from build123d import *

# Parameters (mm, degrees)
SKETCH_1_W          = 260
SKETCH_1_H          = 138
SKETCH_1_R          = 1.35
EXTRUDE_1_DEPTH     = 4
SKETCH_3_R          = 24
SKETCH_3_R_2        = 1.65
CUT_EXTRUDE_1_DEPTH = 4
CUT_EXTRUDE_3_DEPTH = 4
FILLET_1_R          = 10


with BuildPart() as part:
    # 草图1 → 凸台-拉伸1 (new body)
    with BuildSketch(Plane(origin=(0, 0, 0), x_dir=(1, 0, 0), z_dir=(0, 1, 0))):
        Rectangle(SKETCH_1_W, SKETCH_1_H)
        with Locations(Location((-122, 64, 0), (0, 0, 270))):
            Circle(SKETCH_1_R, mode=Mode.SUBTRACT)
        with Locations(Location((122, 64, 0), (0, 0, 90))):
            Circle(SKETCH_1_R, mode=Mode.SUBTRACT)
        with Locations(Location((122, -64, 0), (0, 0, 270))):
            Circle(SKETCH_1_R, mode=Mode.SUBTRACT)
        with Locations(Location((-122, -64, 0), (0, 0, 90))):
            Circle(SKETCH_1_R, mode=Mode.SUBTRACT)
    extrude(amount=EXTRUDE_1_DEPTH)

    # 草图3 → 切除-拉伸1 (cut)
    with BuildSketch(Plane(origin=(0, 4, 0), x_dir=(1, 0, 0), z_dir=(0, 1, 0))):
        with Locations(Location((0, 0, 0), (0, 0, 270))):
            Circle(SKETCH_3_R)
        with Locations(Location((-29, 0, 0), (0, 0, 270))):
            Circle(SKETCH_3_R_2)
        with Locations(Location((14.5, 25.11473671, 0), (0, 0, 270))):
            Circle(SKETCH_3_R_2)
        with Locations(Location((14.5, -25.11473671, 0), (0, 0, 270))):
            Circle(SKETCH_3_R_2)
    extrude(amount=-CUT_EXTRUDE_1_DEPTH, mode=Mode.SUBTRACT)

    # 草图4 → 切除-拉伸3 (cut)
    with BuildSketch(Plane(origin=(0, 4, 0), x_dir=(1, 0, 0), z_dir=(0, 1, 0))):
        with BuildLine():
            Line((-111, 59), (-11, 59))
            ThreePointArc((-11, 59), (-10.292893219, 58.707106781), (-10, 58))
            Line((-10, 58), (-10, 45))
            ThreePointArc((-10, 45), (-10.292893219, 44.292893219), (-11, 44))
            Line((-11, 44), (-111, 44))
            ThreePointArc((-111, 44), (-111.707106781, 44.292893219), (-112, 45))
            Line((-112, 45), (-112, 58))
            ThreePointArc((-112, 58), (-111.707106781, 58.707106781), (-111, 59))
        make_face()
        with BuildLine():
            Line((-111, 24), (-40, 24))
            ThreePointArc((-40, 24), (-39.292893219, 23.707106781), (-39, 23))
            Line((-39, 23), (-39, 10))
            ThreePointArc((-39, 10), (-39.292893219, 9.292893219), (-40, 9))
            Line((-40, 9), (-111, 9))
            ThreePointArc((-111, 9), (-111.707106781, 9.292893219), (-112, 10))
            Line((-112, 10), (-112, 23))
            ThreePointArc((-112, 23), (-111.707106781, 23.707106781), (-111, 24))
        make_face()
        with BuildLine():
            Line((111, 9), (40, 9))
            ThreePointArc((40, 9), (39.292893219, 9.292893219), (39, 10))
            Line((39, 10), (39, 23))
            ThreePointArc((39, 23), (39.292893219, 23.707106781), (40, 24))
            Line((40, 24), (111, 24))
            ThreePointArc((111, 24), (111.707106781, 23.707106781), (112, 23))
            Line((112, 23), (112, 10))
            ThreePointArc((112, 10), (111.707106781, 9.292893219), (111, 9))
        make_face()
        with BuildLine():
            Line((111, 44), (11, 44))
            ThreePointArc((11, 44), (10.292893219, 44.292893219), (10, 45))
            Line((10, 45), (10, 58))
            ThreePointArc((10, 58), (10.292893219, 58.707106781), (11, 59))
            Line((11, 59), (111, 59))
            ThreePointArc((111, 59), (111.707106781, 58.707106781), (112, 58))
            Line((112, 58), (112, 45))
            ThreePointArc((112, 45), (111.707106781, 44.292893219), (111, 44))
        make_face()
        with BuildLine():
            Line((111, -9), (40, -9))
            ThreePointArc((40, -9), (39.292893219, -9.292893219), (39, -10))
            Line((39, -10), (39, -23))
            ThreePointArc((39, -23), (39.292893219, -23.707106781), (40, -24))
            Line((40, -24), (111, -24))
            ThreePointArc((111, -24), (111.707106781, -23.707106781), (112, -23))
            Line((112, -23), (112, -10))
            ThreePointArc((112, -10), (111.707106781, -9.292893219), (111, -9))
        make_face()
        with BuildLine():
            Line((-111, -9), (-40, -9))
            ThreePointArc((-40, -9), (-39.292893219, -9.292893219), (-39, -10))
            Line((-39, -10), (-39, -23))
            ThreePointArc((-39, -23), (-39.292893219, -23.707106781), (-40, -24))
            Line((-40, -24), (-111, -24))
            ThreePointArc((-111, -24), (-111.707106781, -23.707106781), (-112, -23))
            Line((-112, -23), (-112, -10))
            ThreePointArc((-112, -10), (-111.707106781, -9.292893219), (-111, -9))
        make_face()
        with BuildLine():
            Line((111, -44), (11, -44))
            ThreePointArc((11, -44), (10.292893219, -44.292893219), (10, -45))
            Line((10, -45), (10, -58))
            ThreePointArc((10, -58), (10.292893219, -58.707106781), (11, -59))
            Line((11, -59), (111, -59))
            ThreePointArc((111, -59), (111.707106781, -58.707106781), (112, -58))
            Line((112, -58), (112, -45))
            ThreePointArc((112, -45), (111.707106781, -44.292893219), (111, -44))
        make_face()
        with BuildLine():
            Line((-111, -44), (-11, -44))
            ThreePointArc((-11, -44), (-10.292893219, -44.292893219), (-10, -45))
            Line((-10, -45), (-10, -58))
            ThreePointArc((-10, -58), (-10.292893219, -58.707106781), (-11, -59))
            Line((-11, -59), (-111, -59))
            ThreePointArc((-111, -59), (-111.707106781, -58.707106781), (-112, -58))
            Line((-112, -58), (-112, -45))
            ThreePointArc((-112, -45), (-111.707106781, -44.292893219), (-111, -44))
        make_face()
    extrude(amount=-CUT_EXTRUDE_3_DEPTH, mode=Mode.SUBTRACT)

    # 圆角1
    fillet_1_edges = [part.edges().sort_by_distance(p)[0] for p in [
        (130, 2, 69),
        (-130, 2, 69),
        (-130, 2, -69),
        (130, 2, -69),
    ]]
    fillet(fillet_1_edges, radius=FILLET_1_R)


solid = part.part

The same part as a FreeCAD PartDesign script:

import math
import FreeCAD as App
import Part
import Sketcher

V = App.Vector
Q = App.Units.Quantity


def edges_at(feature, points):
    """Names of the edges that pass closest to the given points."""
    edges = feature.Shape.Edges
    near = lambda p: min(range(len(edges)), key=lambda i: edges[i].distToShape(Part.Vertex(*p))[0])
    return sorted({f"Edge{near(p) + 1}" for p in points})


def add_polygon(sketch, points):
    """Adds a closed chain of lines whose ends are joined by coincident constraints."""
    first, n = sketch.GeometryCount, len(points)
    for a, b in zip(points, points[1:] + points[:1]):
        sketch.addGeometry(Part.LineSegment(App.Vector(*a, 0), App.Vector(*b, 0)), False)
    for i in range(n):
        sketch.addConstraint(Sketcher.Constraint("Coincident", first + i, 2, first + (i + 1) % n, 1))

doc = App.newDocument("Part")
params = doc.addObject("Spreadsheet::Sheet", "Params")
for row, (alias, value) in enumerate([
    ("sketch1_diameter", "2.7 mm"),
    ("sketch1_width", "260 mm"),
    ("sketch1_height", "138 mm"),
    ("pad1_length", "4 mm"),
    ("sketch2_diameter", "48 mm"),
    ("sketch2_diameter2", "3.3 mm"),
    ("pocket1_length", "4 mm"),
    ("sketch3_radius", "1 mm"),
    ("sketch3_width", "100 mm"),
    ("sketch3_width2", "71 mm"),
    ("sketch3_height", "13 mm"),
    ("pocket2_length", "4 mm"),
    ("fillet_radius", "10 mm"),
], start=1):
    params.set(f"A{row}", alias)
    params.set(f"B{row}", "=" + value)
    params.setAlias(f"B{row}", alias)

body = doc.addObject("PartDesign::Body", "Body")

sketch1 = doc.addObject("Sketcher::SketchObject", "Sketch")
body.addObject(sketch1)
sketch1.AttachmentSupport = (doc.XZ_Plane, [""])
sketch1.MapMode = "FlatFace"
add_polygon(sketch1, [(-130, -69), (-130, 69), (130, 69), (130, -69)])
sketch1.addGeometry(Part.Circle(V(-122, 64, 0), V(0, 0, 1), 1.35), False)
sketch1.addGeometry(Part.Circle(V(122, 64, 0), V(0, 0, 1), 1.35), False)
sketch1.addGeometry(Part.Circle(V(-122, -64, 0), V(0, 0, 1), 1.35), False)
sketch1.addGeometry(Part.Circle(V(122, -64, 0), V(0, 0, 1), 1.35), False)
sketch1.addConstraint([
    Sketcher.Constraint("Vertical", 0),
    Sketcher.Constraint("Horizontal", 1),
    Sketcher.Constraint("Vertical", 2),
    Sketcher.Constraint("Horizontal", 3),
    Sketcher.Constraint("Equal", 4, 5),
    Sketcher.Constraint("Equal", 5, 6),
    Sketcher.Constraint("Equal", 6, 7),
    Sketcher.Constraint("Symmetric", 5, 3, 6, 3, -1, 1),
    Sketcher.Constraint("Symmetric", 4, 3, 7, 3, -1, 1),
    Sketcher.Constraint("Symmetric", 0, 2, 2, 2, -1, 1),
    Sketcher.Constraint("Symmetric", 4, 3, 5, 3, -2),
    Sketcher.Constraint("Diameter", 4, Q("2.7 mm")),
    Sketcher.Constraint("DistanceX", 1, 1, 1, 2, Q("260 mm")),
    Sketcher.Constraint("DistanceY", 0, 1, 0, 2, Q("138 mm")),
    Sketcher.Constraint("DistanceX", 4, 3, -1, 1, Q("122 mm")),
    Sketcher.Constraint("DistanceY", -1, 1, 4, 3, Q("64 mm")),
])
sketch1.setExpression("Constraints[15]", "Params.sketch1_diameter")
sketch1.setExpression("Constraints[16]", "Params.sketch1_width")
sketch1.setExpression("Constraints[17]", "Params.sketch1_height")
pad1 = doc.addObject("PartDesign::Pad", "Pad")
body.addObject(pad1)
pad1.Profile = sketch1
pad1.setExpression("Length", "Params.pad1_length")
pad1.Reversed = True

sketch2 = doc.addObject("Sketcher::SketchObject", "Sketch001")
body.addObject(sketch2)
sketch2.AttachmentSupport = (doc.XZ_Plane, [""])
sketch2.MapMode = "FlatFace"
sketch2.AttachmentOffset = App.Placement(V(0, 0, -4), App.Rotation())
sketch2.addGeometry([
    Part.Circle(V(0, 0, 0), V(0, 0, 1), 24),
    Part.Circle(V(-29, 0, 0), V(0, 0, 1), 1.65),
    Part.Circle(V(14.5, -25.114737, 0), V(0, 0, 1), 1.65),
    Part.Circle(V(14.5, 25.114737, 0), V(0, 0, 1), 1.65),
], False)
sketch2.addConstraint([
    Sketcher.Constraint("Coincident", 0, 3, -1, 1),
    Sketcher.Constraint("Equal", 1, 2),
    Sketcher.Constraint("Equal", 2, 3),
    Sketcher.Constraint("Symmetric", 2, 3, 3, 3, -1),
    Sketcher.Constraint("PointOnObject", 1, 3, -1),
    Sketcher.Constraint("Diameter", 0, Q("48 mm")),
    Sketcher.Constraint("Diameter", 1, Q("3.3 mm")),
    Sketcher.Constraint("DistanceX", 1, 3, -1, 1, Q("29 mm")),
    Sketcher.Constraint("DistanceX", -1, 1, 2, 3, Q("14.5 mm")),
    Sketcher.Constraint("DistanceY", 2, 3, -1, 1, Q("25.114737 mm")),
])
sketch2.setExpression("Constraints[5]", "Params.sketch2_diameter")
sketch2.setExpression("Constraints[6]", "Params.sketch2_diameter2")
pocket1 = doc.addObject("PartDesign::Pocket", "Pocket")
body.addObject(pocket1)
pocket1.Profile = sketch2
pocket1.setExpression("Length", "Params.pocket1_length")
pocket1.Reversed = True

sketch3 = doc.addObject("Sketcher::SketchObject", "Sketch002")
body.addObject(sketch3)
sketch3.AttachmentSupport = (doc.XZ_Plane, [""])
sketch3.MapMode = "FlatFace"
sketch3.AttachmentOffset = App.Placement(V(0, 0, -4), App.Rotation())
sketch3.addGeometry([
    Part.LineSegment(V(-11, -59, 0), V(-111, -59, 0)),
    Part.ArcOfCircle(Part.Circle(V(-111, -58, 0), V(0, 0, 1), 1), math.radians(-180), math.radians(-90)),
    Part.LineSegment(V(-112, -58, 0), V(-112, -45, 0)),
    Part.ArcOfCircle(Part.Circle(V(-111, -45, 0), V(0, 0, 1), 1), math.radians(90), math.radians(180)),
    Part.LineSegment(V(-111, -44, 0), V(-11, -44, 0)),
    Part.ArcOfCircle(Part.Circle(V(-11, -45, 0), V(0, 0, 1), 1), math.radians(0), math.radians(90)),
    Part.LineSegment(V(-10, -45, 0), V(-10, -58, 0)),
    Part.ArcOfCircle(Part.Circle(V(-11, -58, 0), V(0, 0, 1), 1), math.radians(-90), math.radians(0)),
    Part.LineSegment(V(-40, -24, 0), V(-111, -24, 0)),
    Part.ArcOfCircle(Part.Circle(V(-111, -23, 0), V(0, 0, 1), 1), math.radians(-180), math.radians(-90)),
    Part.LineSegment(V(-112, -23, 0), V(-112, -10, 0)),
    Part.ArcOfCircle(Part.Circle(V(-111, -10, 0), V(0, 0, 1), 1), math.radians(90), math.radians(180)),
    Part.LineSegment(V(-111, -9, 0), V(-40, -9, 0)),
    Part.ArcOfCircle(Part.Circle(V(-40, -10, 0), V(0, 0, 1), 1), math.radians(0), math.radians(90)),
    Part.LineSegment(V(-39, -10, 0), V(-39, -23, 0)),
    Part.ArcOfCircle(Part.Circle(V(-40, -23, 0), V(0, 0, 1), 1), math.radians(-90), math.radians(0)),
    Part.LineSegment(V(40, -9, 0), V(111, -9, 0)),
    Part.ArcOfCircle(Part.Circle(V(111, -10, 0), V(0, 0, 1), 1), math.radians(0), math.radians(90)),
    Part.LineSegment(V(112, -10, 0), V(112, -23, 0)),
    Part.ArcOfCircle(Part.Circle(V(111, -23, 0), V(0, 0, 1), 1), math.radians(-90), math.radians(0)),
    Part.LineSegment(V(111, -24, 0), V(40, -24, 0)),
    Part.ArcOfCircle(Part.Circle(V(40, -23, 0), V(0, 0, 1), 1), math.radians(-180), math.radians(-90)),
    Part.LineSegment(V(39, -23, 0), V(39, -10, 0)),
    Part.ArcOfCircle(Part.Circle(V(40, -10, 0), V(0, 0, 1), 1), math.radians(90), math.radians(180)),
    Part.LineSegment(V(11, -44, 0), V(111, -44, 0)),
    Part.ArcOfCircle(Part.Circle(V(111, -45, 0), V(0, 0, 1), 1), math.radians(0), math.radians(90)),
    Part.LineSegment(V(112, -45, 0), V(112, -58, 0)),
    Part.ArcOfCircle(Part.Circle(V(111, -58, 0), V(0, 0, 1), 1), math.radians(-90), math.radians(0)),
    Part.LineSegment(V(111, -59, 0), V(11, -59, 0)),
    Part.ArcOfCircle(Part.Circle(V(11, -58, 0), V(0, 0, 1), 1), math.radians(-180), math.radians(-90)),
    Part.LineSegment(V(10, -58, 0), V(10, -45, 0)),
    Part.ArcOfCircle(Part.Circle(V(11, -45, 0), V(0, 0, 1), 1), math.radians(90), math.radians(180)),
    Part.LineSegment(V(111, 9, 0), V(40, 9, 0)),
    Part.ArcOfCircle(Part.Circle(V(40, 10, 0), V(0, 0, 1), 1), math.radians(-180), math.radians(-90)),
    Part.LineSegment(V(39, 10, 0), V(39, 23, 0)),
    Part.ArcOfCircle(Part.Circle(V(40, 23, 0), V(0, 0, 1), 1), math.radians(90), math.radians(180)),
    Part.LineSegment(V(40, 24, 0), V(111, 24, 0)),
    Part.ArcOfCircle(Part.Circle(V(111, 23, 0), V(0, 0, 1), 1), math.radians(0), math.radians(90)),
    Part.LineSegment(V(112, 23, 0), V(112, 10, 0)),
    Part.ArcOfCircle(Part.Circle(V(111, 10, 0), V(0, 0, 1), 1), math.radians(-90), math.radians(0)),
    Part.LineSegment(V(-40, 9, 0), V(-111, 9, 0)),
    Part.ArcOfCircle(Part.Circle(V(-111, 10, 0), V(0, 0, 1), 1), math.radians(-180), math.radians(-90)),
    Part.LineSegment(V(-112, 10, 0), V(-112, 23, 0)),
    Part.ArcOfCircle(Part.Circle(V(-111, 23, 0), V(0, 0, 1), 1), math.radians(90), math.radians(180)),
    Part.LineSegment(V(-111, 24, 0), V(-40, 24, 0)),
    Part.ArcOfCircle(Part.Circle(V(-40, 23, 0), V(0, 0, 1), 1), math.radians(0), math.radians(90)),
    Part.LineSegment(V(-39, 23, 0), V(-39, 10, 0)),
    Part.ArcOfCircle(Part.Circle(V(-40, 10, 0), V(0, 0, 1), 1), math.radians(-90), math.radians(0)),
    Part.LineSegment(V(111, 44, 0), V(11, 44, 0)),
    Part.ArcOfCircle(Part.Circle(V(11, 45, 0), V(0, 0, 1), 1), math.radians(-180), math.radians(-90)),
    Part.LineSegment(V(10, 45, 0), V(10, 58, 0)),
    Part.ArcOfCircle(Part.Circle(V(11, 58, 0), V(0, 0, 1), 1), math.radians(90), math.radians(180)),
    Part.LineSegment(V(11, 59, 0), V(111, 59, 0)),
    Part.ArcOfCircle(Part.Circle(V(111, 58, 0), V(0, 0, 1), 1), math.radians(0), math.radians(90)),
    Part.LineSegment(V(112, 58, 0), V(112, 45, 0)),
    Part.ArcOfCircle(Part.Circle(V(111, 45, 0), V(0, 0, 1), 1), math.radians(-90), math.radians(0)),
    Part.LineSegment(V(-11, 44, 0), V(-111, 44, 0)),
    Part.ArcOfCircle(Part.Circle(V(-111, 45, 0), V(0, 0, 1), 1), math.radians(-180), math.radians(-90)),
    Part.LineSegment(V(-112, 45, 0), V(-112, 58, 0)),
    Part.ArcOfCircle(Part.Circle(V(-111, 58, 0), V(0, 0, 1), 1), math.radians(90), math.radians(180)),
    Part.LineSegment(V(-111, 59, 0), V(-11, 59, 0)),
    Part.ArcOfCircle(Part.Circle(V(-11, 58, 0), V(0, 0, 1), 1), math.radians(0), math.radians(90)),
    Part.LineSegment(V(-10, 58, 0), V(-10, 45, 0)),
    Part.ArcOfCircle(Part.Circle(V(-11, 45, 0), V(0, 0, 1), 1), math.radians(-90), math.radians(0)),
], False)
sketch3.addConstraint([
    Sketcher.Constraint("Tangent", 0, 2, 1, 2),
    Sketcher.Constraint("Tangent", 1, 1, 2, 1),
    Sketcher.Constraint("Tangent", 2, 2, 3, 2),
    Sketcher.Constraint("Tangent", 3, 1, 4, 1),
    Sketcher.Constraint("Tangent", 4, 2, 5, 2),
    Sketcher.Constraint("Tangent", 5, 1, 6, 1),
    Sketcher.Constraint("Tangent", 6, 2, 7, 2),
    Sketcher.Constraint("Tangent", 7, 1, 0, 1),
    Sketcher.Constraint("Tangent", 8, 2, 9, 2),
    Sketcher.Constraint("Tangent", 9, 1, 10, 1),
    Sketcher.Constraint("Tangent", 10, 2, 11, 2),
    Sketcher.Constraint("Tangent", 11, 1, 12, 1),
    Sketcher.Constraint("Tangent", 12, 2, 13, 2),
    Sketcher.Constraint("Tangent", 13, 1, 14, 1),
    Sketcher.Constraint("Tangent", 14, 2, 15, 2),
    Sketcher.Constraint("Tangent", 15, 1, 8, 1),
    Sketcher.Constraint("Tangent", 16, 2, 17, 2),
    Sketcher.Constraint("Tangent", 17, 1, 18, 1),
    Sketcher.Constraint("Tangent", 18, 2, 19, 2),
    Sketcher.Constraint("Tangent", 19, 1, 20, 1),
    Sketcher.Constraint("Tangent", 20, 2, 21, 2),
    Sketcher.Constraint("Tangent", 21, 1, 22, 1),
    Sketcher.Constraint("Tangent", 22, 2, 23, 2),
    Sketcher.Constraint("Tangent", 23, 1, 16, 1),
    Sketcher.Constraint("Tangent", 24, 2, 25, 2),
    Sketcher.Constraint("Tangent", 25, 1, 26, 1),
    Sketcher.Constraint("Tangent", 26, 2, 27, 2),
    Sketcher.Constraint("Tangent", 27, 1, 28, 1),
    Sketcher.Constraint("Tangent", 28, 2, 29, 2),
    Sketcher.Constraint("Tangent", 29, 1, 30, 1),
    Sketcher.Constraint("Tangent", 30, 2, 31, 2),
    Sketcher.Constraint("Tangent", 31, 1, 24, 1),
    Sketcher.Constraint("Tangent", 32, 2, 33, 2),
    Sketcher.Constraint("Tangent", 33, 1, 34, 1),
    Sketcher.Constraint("Tangent", 34, 2, 35, 2),
    Sketcher.Constraint("Tangent", 35, 1, 36, 1),
    Sketcher.Constraint("Tangent", 36, 2, 37, 2),
    Sketcher.Constraint("Tangent", 37, 1, 38, 1),
    Sketcher.Constraint("Tangent", 38, 2, 39, 2),
    Sketcher.Constraint("Tangent", 39, 1, 32, 1),
    Sketcher.Constraint("Tangent", 40, 2, 41, 2),
    Sketcher.Constraint("Tangent", 41, 1, 42, 1),
    Sketcher.Constraint("Tangent", 42, 2, 43, 2),
    Sketcher.Constraint("Tangent", 43, 1, 44, 1),
    Sketcher.Constraint("Tangent", 44, 2, 45, 2),
    Sketcher.Constraint("Tangent", 45, 1, 46, 1),
    Sketcher.Constraint("Tangent", 46, 2, 47, 2),
    Sketcher.Constraint("Tangent", 47, 1, 40, 1),
    Sketcher.Constraint("Tangent", 48, 2, 49, 2),
    Sketcher.Constraint("Tangent", 49, 1, 50, 1),
    Sketcher.Constraint("Tangent", 50, 2, 51, 2),
    Sketcher.Constraint("Tangent", 51, 1, 52, 1),
    Sketcher.Constraint("Tangent", 52, 2, 53, 2),
    Sketcher.Constraint("Tangent", 53, 1, 54, 1),
    Sketcher.Constraint("Tangent", 54, 2, 55, 2),
    Sketcher.Constraint("Tangent", 55, 1, 48, 1),
    Sketcher.Constraint("Tangent", 56, 2, 57, 2),
    Sketcher.Constraint("Tangent", 57, 1, 58, 1),
    Sketcher.Constraint("Tangent", 58, 2, 59, 2),
    Sketcher.Constraint("Tangent", 59, 1, 60, 1),
    Sketcher.Constraint("Tangent", 60, 2, 61, 2),
    Sketcher.Constraint("Tangent", 61, 1, 62, 1),
    Sketcher.Constraint("Tangent", 62, 2, 63, 2),
    Sketcher.Constraint("Tangent", 63, 1, 56, 1),
    Sketcher.Constraint("Horizontal", 0),
    Sketcher.Constraint("Vertical", 2),
    Sketcher.Constraint("Horizontal", 4),
    Sketcher.Constraint("Vertical", 6),
    Sketcher.Constraint("Horizontal", 8),
    Sketcher.Constraint("Vertical", 10),
    Sketcher.Constraint("Horizontal", 12),
    Sketcher.Constraint("Vertical", 14),
    Sketcher.Constraint("Horizontal", 16),
    Sketcher.Constraint("Vertical", 18),
    Sketcher.Constraint("Horizontal", 20),
    Sketcher.Constraint("Vertical", 22),
    Sketcher.Constraint("Horizontal", 24),
    Sketcher.Constraint("Vertical", 26),
    Sketcher.Constraint("Horizontal", 28),
    Sketcher.Constraint("Vertical", 30),
    Sketcher.Constraint("Horizontal", 32),
    Sketcher.Constraint("Vertical", 34),
    Sketcher.Constraint("Horizontal", 36),
    Sketcher.Constraint("Vertical", 38),
    Sketcher.Constraint("Horizontal", 40),
    Sketcher.Constraint("Vertical", 42),
    Sketcher.Constraint("Horizontal", 44),
    Sketcher.Constraint("Vertical", 46),
    Sketcher.Constraint("Horizontal", 48),
    Sketcher.Constraint("Vertical", 50),
    Sketcher.Constraint("Horizontal", 52),
    Sketcher.Constraint("Vertical", 54),
    Sketcher.Constraint("Horizontal", 56),
    Sketcher.Constraint("Vertical", 58),
    Sketcher.Constraint("Horizontal", 60),
    Sketcher.Constraint("Vertical", 62),
    Sketcher.Constraint("Equal", 1, 3),
    Sketcher.Constraint("Equal", 3, 5),
    Sketcher.Constraint("Equal", 5, 7),
    Sketcher.Constraint("Equal", 7, 9),
    Sketcher.Constraint("Equal", 9, 11),
    Sketcher.Constraint("Equal", 11, 13),
    Sketcher.Constraint("Equal", 13, 15),
    Sketcher.Constraint("Equal", 15, 17),
    Sketcher.Constraint("Equal", 17, 19),
    Sketcher.Constraint("Equal", 19, 21),
    Sketcher.Constraint("Equal", 21, 23),
    Sketcher.Constraint("Equal", 23, 25),
    Sketcher.Constraint("Equal", 25, 27),
    Sketcher.Constraint("Equal", 27, 29),
    Sketcher.Constraint("Equal", 29, 31),
    Sketcher.Constraint("Equal", 31, 33),
    Sketcher.Constraint("Equal", 33, 35),
    Sketcher.Constraint("Equal", 35, 37),
    Sketcher.Constraint("Equal", 37, 39),
    Sketcher.Constraint("Equal", 39, 41),
    Sketcher.Constraint("Equal", 41, 43),
    Sketcher.Constraint("Equal", 43, 45),
    Sketcher.Constraint("Equal", 45, 47),
    Sketcher.Constraint("Equal", 47, 49),
    Sketcher.Constraint("Equal", 49, 51),
    Sketcher.Constraint("Equal", 51, 53),
    Sketcher.Constraint("Equal", 53, 55),
    Sketcher.Constraint("Equal", 55, 57),
    Sketcher.Constraint("Equal", 57, 59),
    Sketcher.Constraint("Equal", 59, 61),
    Sketcher.Constraint("Equal", 61, 63),
    Sketcher.Constraint("Symmetric", 13, 3, 33, 3, -1, 1),
    Sketcher.Constraint("Symmetric", 9, 3, 37, 3, -1, 1),
    Sketcher.Constraint("Symmetric", 17, 3, 41, 3, -1, 1),
    Sketcher.Constraint("Symmetric", 21, 3, 45, 3, -1, 1),
    Sketcher.Constraint("Symmetric", 5, 3, 49, 3, -1, 1),
    Sketcher.Constraint("Symmetric", 1, 3, 53, 3, -1, 1),
    Sketcher.Constraint("Symmetric", 25, 3, 57, 3, -1, 1),
    Sketcher.Constraint("Symmetric", 29, 3, 61, 3, -1, 1),
    Sketcher.Constraint("Symmetric", 11, 3, 17, 3, -2),
    Sketcher.Constraint("Symmetric", 15, 3, 21, 3, -2),
    Sketcher.Constraint("Symmetric", 3, 3, 25, 3, -2),
    Sketcher.Constraint("Symmetric", 7, 3, 29, 3, -2),
    Sketcher.Constraint("Vertical", 3, 3, 9, 3),
    Sketcher.Constraint("Equal", 6, 10),
    Sketcher.Constraint("Radius", 1, Q("1 mm")),
    Sketcher.Constraint("DistanceX", 0, 2, 0, 1, Q("100 mm")),
    Sketcher.Constraint("DistanceX", 8, 2, 8, 1, Q("71 mm")),
    Sketcher.Constraint("DistanceY", 2, 1, 2, 2, Q("13 mm")),
    Sketcher.Constraint("DistanceX", 1, 3, -1, 1, Q("111 mm")),
    Sketcher.Constraint("DistanceY", 1, 3, -1, 1, Q("58 mm")),
    Sketcher.Constraint("DistanceY", 9, 3, -1, 1, Q("23 mm")),
])
sketch3.setExpression("Constraints[141]", "Params.sketch3_radius")
sketch3.setExpression("Constraints[142]", "Params.sketch3_width")
sketch3.setExpression("Constraints[143]", "Params.sketch3_width2")
sketch3.setExpression("Constraints[144]", "Params.sketch3_height")
pocket2 = doc.addObject("PartDesign::Pocket", "Pocket001")
body.addObject(pocket2)
pocket2.Profile = sketch3
pocket2.setExpression("Length", "Params.pocket2_length")
pocket2.Reversed = True
doc.recompute()

fillet = doc.addObject("PartDesign::Fillet", "Fillet")
body.addObject(fillet)
fillet.Base = (pocket2, edges_at(pocket2, [
    (130, 2, 69),
    (-130, 2, 69),
    (-130, 2, -69),
    (130, 2, -69),
]))
fillet.setExpression("Radius", "Params.fillet_radius")

doc.recompute()
